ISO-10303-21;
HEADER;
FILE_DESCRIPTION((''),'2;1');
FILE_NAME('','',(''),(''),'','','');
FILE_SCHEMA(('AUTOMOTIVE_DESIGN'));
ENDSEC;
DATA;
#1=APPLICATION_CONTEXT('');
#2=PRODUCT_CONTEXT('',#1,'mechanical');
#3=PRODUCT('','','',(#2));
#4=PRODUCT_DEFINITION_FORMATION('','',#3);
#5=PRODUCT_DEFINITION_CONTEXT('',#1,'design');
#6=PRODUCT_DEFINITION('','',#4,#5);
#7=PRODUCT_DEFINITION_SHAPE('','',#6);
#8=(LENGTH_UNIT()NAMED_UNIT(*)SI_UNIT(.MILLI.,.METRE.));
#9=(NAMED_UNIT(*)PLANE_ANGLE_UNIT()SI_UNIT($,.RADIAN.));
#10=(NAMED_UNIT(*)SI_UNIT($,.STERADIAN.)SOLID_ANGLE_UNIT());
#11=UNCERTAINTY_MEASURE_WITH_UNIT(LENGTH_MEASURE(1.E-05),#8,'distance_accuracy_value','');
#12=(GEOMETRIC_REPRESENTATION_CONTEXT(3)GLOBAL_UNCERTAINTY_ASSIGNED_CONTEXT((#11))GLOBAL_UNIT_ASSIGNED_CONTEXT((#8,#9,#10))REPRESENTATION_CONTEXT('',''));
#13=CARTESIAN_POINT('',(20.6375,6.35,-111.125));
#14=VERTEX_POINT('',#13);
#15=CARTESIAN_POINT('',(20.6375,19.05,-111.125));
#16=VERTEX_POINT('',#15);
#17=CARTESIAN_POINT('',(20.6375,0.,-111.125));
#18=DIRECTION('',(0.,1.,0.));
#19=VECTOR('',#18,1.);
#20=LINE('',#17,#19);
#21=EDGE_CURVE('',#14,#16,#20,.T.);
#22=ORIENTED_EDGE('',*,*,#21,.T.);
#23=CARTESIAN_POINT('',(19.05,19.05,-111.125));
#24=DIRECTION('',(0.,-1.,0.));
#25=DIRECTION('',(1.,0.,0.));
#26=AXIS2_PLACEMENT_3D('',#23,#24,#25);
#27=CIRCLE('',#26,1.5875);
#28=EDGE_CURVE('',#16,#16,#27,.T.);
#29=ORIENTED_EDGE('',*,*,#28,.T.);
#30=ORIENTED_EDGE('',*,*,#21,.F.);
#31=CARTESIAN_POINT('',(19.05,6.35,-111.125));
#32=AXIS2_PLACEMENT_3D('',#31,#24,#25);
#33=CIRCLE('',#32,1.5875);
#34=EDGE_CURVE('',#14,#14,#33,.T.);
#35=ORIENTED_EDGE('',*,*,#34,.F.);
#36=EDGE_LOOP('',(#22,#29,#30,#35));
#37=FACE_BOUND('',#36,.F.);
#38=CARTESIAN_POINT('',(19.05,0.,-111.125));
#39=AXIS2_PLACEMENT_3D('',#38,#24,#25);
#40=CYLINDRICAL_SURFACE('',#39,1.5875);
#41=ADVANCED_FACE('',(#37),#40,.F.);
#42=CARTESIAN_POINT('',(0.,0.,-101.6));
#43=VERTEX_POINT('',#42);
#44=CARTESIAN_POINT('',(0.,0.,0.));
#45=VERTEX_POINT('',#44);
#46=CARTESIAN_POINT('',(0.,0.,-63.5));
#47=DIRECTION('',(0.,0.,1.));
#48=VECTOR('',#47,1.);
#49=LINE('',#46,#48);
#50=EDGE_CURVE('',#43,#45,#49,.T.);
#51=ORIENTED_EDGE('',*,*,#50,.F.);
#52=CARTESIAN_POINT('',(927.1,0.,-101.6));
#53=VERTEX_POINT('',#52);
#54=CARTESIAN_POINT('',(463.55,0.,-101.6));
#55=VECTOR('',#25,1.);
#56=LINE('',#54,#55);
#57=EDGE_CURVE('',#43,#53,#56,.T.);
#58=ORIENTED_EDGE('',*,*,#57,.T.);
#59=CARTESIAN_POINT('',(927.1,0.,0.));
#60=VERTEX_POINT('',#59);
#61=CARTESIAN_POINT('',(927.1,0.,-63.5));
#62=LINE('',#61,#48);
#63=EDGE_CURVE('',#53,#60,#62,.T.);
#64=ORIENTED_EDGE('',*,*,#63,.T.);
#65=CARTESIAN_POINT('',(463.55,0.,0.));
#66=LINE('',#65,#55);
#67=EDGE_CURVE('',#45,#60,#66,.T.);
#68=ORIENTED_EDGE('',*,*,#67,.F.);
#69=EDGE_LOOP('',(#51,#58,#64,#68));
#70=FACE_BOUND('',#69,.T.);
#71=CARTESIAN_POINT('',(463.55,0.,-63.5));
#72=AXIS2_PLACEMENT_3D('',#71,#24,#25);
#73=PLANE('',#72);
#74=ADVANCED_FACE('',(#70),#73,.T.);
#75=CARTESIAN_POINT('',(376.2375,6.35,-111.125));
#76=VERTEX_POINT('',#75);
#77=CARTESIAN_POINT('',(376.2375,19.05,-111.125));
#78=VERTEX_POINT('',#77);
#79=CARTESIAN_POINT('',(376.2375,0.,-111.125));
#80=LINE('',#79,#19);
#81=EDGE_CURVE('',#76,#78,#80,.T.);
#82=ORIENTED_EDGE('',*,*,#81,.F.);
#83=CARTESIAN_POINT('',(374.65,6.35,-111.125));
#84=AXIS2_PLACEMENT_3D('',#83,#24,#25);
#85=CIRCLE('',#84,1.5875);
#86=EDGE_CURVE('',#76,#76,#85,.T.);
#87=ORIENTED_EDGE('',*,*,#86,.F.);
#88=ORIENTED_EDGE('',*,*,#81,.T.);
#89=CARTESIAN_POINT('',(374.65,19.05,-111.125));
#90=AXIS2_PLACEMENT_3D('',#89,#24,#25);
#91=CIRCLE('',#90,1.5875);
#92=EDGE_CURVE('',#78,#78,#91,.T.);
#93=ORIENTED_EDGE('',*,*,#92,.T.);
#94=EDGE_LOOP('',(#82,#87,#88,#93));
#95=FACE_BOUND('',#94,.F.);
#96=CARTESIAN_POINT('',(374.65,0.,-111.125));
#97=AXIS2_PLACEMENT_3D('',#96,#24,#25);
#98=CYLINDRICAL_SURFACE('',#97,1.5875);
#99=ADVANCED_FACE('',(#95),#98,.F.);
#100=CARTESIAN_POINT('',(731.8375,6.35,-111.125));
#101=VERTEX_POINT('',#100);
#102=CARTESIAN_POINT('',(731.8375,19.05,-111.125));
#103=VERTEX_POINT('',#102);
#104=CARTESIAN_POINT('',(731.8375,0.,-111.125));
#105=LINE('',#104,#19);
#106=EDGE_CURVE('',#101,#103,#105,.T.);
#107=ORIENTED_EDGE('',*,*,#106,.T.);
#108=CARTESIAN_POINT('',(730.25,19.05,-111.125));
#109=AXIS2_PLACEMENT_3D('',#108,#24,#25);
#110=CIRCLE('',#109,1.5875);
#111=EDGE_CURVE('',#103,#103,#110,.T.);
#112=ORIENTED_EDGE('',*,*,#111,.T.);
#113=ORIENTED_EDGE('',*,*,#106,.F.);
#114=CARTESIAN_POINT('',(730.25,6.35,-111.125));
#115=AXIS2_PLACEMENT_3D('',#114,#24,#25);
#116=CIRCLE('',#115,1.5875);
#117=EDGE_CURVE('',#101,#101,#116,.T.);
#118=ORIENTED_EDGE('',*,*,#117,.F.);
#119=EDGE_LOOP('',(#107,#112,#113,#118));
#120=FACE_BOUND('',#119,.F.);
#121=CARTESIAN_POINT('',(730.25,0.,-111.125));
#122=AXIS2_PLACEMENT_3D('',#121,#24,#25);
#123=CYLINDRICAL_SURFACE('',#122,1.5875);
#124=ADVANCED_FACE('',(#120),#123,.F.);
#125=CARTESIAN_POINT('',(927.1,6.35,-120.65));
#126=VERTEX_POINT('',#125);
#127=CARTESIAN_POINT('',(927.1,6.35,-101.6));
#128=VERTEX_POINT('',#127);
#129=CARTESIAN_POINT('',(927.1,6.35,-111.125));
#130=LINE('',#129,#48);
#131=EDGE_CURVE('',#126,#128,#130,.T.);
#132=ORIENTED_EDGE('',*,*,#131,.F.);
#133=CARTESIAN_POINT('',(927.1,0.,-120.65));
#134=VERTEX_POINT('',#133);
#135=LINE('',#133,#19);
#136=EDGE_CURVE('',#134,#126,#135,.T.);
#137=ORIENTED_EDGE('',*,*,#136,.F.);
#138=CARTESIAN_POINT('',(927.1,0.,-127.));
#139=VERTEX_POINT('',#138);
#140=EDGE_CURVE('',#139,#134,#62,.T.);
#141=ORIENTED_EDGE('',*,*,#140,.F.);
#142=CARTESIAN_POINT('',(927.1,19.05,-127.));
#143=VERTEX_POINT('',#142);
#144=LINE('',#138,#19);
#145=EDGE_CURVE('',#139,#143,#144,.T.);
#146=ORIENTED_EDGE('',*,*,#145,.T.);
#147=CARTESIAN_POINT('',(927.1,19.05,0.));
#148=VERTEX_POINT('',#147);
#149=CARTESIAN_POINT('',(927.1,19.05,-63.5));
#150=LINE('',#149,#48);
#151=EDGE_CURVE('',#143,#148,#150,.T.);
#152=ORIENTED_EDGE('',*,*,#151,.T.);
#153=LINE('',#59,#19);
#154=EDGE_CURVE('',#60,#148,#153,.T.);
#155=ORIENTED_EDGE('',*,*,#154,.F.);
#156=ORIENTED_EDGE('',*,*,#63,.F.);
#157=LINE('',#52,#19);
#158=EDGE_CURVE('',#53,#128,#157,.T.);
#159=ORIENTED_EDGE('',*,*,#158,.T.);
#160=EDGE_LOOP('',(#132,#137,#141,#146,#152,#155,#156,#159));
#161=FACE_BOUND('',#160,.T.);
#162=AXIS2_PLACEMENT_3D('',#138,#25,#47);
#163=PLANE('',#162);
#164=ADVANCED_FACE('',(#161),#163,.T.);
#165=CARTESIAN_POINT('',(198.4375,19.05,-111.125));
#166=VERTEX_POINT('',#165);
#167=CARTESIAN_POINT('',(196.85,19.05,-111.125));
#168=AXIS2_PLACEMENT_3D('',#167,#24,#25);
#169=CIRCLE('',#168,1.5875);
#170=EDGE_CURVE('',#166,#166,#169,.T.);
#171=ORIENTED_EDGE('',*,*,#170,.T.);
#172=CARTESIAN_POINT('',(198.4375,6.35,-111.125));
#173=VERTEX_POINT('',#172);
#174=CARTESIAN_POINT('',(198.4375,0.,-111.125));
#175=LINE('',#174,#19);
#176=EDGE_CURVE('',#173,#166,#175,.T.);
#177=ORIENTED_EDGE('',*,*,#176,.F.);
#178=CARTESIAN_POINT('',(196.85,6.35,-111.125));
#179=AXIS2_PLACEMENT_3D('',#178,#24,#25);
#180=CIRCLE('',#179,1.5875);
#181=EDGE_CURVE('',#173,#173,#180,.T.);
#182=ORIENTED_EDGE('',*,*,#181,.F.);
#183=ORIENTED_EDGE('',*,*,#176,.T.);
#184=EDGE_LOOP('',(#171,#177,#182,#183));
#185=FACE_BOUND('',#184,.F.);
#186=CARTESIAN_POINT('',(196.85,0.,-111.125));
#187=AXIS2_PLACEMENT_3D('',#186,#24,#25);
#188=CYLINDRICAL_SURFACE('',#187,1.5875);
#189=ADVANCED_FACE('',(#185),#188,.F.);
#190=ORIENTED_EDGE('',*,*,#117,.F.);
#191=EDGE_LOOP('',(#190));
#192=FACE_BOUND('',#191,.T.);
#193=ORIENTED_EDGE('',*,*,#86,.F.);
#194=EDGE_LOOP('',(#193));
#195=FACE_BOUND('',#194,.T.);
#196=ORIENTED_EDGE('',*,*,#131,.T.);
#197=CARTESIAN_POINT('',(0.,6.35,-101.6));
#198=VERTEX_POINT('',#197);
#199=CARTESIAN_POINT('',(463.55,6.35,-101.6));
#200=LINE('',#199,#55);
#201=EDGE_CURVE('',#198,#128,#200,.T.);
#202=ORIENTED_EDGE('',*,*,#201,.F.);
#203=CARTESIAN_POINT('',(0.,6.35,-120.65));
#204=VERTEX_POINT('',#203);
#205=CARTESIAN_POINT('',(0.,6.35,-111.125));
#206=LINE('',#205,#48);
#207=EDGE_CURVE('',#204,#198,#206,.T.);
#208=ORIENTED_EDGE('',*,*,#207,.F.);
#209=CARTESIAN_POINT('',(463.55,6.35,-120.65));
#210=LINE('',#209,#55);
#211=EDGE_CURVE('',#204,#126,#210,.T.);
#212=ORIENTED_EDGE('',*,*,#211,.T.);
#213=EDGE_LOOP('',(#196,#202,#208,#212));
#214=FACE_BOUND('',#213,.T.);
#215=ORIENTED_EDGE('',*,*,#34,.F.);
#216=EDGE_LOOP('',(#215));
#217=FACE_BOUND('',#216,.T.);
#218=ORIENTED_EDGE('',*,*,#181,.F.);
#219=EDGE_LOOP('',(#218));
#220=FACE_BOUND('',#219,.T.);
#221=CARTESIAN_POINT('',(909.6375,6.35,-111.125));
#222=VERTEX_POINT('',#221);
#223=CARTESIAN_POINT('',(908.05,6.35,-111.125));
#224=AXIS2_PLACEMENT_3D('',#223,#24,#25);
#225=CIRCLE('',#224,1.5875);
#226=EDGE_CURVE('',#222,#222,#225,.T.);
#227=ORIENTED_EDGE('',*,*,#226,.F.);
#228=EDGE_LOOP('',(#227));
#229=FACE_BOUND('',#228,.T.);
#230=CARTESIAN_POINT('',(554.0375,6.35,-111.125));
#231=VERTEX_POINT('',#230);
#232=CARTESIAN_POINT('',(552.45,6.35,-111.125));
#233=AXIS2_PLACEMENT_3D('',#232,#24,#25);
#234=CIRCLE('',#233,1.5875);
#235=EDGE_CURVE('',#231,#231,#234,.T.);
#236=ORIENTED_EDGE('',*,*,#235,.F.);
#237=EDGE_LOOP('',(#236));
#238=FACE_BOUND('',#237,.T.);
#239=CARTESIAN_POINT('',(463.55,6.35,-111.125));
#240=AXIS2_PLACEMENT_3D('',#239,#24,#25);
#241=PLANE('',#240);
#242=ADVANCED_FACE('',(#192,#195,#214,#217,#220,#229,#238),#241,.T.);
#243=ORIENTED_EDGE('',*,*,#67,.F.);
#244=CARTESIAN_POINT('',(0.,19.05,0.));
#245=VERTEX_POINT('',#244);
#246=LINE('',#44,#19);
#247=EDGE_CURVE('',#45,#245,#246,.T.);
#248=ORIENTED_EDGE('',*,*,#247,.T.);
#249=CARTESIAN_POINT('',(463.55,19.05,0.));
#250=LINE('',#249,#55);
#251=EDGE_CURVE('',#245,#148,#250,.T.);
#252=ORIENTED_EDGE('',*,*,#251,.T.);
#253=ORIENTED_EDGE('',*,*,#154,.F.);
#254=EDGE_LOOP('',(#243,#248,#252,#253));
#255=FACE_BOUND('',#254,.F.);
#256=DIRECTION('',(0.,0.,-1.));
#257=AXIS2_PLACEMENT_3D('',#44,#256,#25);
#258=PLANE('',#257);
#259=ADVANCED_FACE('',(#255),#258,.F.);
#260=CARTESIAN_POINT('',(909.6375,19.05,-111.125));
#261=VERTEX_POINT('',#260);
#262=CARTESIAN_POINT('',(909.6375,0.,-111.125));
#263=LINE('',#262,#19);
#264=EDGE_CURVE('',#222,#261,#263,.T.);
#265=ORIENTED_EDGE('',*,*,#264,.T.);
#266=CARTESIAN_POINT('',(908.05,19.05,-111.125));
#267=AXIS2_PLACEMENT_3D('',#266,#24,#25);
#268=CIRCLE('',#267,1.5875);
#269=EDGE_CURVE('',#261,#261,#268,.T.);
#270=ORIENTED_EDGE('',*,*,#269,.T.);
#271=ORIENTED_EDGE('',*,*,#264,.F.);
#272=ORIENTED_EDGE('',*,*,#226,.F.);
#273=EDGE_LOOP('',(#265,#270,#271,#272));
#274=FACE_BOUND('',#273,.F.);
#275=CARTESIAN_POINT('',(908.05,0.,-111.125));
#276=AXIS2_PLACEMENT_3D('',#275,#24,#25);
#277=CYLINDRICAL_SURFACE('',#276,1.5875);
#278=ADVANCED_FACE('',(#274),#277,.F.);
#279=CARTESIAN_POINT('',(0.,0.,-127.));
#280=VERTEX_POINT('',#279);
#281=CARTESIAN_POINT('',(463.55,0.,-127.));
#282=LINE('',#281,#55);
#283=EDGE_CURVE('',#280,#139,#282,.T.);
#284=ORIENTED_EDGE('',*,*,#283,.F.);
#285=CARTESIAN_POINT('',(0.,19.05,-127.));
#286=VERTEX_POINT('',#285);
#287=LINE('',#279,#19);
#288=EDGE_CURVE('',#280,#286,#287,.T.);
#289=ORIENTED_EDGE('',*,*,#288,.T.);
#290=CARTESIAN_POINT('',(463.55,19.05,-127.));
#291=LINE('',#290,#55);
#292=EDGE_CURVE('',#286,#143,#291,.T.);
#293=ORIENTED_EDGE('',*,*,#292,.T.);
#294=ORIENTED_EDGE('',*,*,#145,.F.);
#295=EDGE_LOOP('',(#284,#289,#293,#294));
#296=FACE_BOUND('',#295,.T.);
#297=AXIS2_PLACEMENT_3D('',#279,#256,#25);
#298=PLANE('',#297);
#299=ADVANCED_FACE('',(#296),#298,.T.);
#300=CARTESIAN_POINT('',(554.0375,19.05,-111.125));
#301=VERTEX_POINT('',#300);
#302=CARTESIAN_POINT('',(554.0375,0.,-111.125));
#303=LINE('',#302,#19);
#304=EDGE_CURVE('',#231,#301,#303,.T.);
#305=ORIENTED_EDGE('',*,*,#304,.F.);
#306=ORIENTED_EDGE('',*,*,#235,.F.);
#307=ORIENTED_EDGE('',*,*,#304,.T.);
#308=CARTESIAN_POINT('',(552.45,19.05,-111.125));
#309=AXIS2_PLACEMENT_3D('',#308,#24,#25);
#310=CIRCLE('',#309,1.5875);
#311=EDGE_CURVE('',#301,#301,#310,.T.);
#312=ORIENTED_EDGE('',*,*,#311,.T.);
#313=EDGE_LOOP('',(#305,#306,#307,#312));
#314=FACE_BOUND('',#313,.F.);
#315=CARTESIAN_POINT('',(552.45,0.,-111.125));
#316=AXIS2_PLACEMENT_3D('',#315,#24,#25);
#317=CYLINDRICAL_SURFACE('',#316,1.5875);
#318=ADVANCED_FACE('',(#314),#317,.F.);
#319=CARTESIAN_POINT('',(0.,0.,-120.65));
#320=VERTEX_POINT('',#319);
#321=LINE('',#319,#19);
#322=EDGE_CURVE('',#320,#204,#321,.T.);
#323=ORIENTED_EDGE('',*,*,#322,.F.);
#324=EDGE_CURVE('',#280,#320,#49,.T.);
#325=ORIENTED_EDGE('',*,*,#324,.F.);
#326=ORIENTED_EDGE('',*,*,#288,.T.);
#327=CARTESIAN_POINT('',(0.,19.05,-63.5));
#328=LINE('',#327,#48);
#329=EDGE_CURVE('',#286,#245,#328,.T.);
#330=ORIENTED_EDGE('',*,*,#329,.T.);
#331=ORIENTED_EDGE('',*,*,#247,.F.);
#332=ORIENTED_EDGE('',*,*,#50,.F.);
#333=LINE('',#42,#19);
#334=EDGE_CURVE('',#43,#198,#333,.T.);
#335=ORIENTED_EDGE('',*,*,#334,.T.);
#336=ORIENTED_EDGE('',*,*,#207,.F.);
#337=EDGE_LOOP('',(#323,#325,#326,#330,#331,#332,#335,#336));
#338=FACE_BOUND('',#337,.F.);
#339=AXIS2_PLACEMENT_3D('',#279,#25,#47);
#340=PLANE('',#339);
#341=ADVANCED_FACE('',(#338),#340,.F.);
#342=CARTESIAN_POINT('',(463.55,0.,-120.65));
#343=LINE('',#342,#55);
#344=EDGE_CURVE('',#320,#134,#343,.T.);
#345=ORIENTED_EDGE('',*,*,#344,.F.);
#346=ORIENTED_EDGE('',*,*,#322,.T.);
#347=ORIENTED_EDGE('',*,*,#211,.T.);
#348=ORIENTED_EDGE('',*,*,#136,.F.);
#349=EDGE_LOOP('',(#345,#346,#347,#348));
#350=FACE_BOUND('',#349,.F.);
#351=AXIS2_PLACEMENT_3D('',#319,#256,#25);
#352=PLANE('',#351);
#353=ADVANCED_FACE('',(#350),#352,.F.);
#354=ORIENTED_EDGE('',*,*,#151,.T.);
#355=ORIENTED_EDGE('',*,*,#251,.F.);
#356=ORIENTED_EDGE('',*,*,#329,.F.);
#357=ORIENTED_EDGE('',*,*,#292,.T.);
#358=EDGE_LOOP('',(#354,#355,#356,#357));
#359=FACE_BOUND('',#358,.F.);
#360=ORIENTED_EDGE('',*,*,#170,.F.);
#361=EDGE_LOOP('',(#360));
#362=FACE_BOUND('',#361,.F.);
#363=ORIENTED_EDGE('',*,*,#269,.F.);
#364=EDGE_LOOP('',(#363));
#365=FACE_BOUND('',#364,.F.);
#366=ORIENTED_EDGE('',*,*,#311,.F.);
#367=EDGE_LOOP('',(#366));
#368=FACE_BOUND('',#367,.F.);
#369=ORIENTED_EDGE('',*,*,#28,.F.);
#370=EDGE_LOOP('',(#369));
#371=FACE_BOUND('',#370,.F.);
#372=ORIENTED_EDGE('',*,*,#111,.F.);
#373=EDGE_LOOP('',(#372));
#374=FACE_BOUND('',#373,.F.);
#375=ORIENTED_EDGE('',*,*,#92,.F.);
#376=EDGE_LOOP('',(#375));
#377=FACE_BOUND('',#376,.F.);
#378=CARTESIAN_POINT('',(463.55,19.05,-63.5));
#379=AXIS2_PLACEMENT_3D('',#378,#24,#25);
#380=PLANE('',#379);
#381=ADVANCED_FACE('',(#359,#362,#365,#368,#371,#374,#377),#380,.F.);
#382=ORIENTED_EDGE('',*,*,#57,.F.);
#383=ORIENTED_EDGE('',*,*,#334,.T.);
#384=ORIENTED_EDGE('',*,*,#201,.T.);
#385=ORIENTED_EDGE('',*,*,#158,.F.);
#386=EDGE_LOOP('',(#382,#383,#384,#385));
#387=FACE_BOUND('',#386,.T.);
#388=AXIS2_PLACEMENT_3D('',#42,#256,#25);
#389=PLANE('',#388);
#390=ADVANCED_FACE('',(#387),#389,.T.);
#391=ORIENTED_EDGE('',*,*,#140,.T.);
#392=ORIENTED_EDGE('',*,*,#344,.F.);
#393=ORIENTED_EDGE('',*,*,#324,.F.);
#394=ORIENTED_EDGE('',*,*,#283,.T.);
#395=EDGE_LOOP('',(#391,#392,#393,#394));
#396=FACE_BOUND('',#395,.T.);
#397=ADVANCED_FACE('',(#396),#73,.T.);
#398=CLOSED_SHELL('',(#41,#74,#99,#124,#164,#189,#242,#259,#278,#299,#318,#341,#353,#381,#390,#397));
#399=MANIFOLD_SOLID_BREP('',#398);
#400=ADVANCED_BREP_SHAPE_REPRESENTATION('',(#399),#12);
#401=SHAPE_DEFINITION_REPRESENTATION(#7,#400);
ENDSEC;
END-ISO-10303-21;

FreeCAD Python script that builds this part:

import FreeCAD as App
import Part
import Sketcher

V = App.Vector
Q = App.Units.Quantity


def add_polygon(sketch, points):
    """Adds a closed chain of lines whose ends are joined by coincident constraints."""
    first, n = sketch.GeometryCount, len(points)
    for a, b in zip(points, points[1:] + points[:1]):
        sketch.addGeometry(Part.LineSegment(App.Vector(*a, 0), App.Vector(*b, 0)), False)
    for i in range(n):
        sketch.addConstraint(Sketcher.Constraint("Coincident", first + i, 2, first + (i + 1) % n, 1))

doc = App.newDocument("Part")
params = doc.addObject("Spreadsheet::Sheet", "Params")
for row, (alias, value) in enumerate([
    ("sketch1_height", "5 in"),
    ("sketch1_width", "36.5 in"),
    ("pad1_length", "0.75 in"),
    ("sketch2_width", "36.5 in"),
    ("sketch2_height", "0.75 in"),
    ("pocket1_length", "0.25 in"),
    ("sketch3_diameter", "0.125 in"),
], start=1):
    params.set(f"A{row}", alias)
    params.set(f"B{row}", "=" + value)
    params.setAlias(f"B{row}", alias)

body = doc.addObject("PartDesign::Body", "Body")

# Sketch on XZ plane
sketch1 = doc.addObject("Sketcher::SketchObject", "Sketch")
body.addObject(sketch1)
sketch1.AttachmentSupport = (doc.XZ_Plane, [""])
sketch1.MapMode = "FlatFace"
add_polygon(sketch1, [(0, 0), (0, -127), (927, -127), (927, 0)])  # lines 0-3
sketch1.addConstraint([
    Sketcher.Constraint("Vertical", 0),
    Sketcher.Constraint("Horizontal", 1),
    Sketcher.Constraint("Vertical", 2),
    Sketcher.Constraint("Horizontal", 3),
    Sketcher.Constraint("Coincident", 3, 2, -1, 1),
    Sketcher.Constraint("DistanceY", 0, 2, 0, 1, Q("5 in")),
    Sketcher.Constraint("DistanceX", 1, 1, 1, 2, Q("36.5 in")),
])
sketch1.setExpression("Constraints[9]", "Params.sketch1_height")
sketch1.setExpression("Constraints[10]", "Params.sketch1_width")
pad1 = doc.addObject("PartDesign::Pad", "Pad")
body.addObject(pad1)
pad1.Profile = sketch1
pad1.setExpression("Length", "Params.pad1_length")
pad1.Reversed = True

# Sketch on XZ plane
sketch2 = doc.addObject("Sketcher::SketchObject", "Sketch001")
body.addObject(sketch2)
sketch2.AttachmentSupport = (doc.XZ_Plane, [""])
sketch2.MapMode = "FlatFace"
add_polygon(sketch2, [(0, -102), (0, -121), (927, -121), (927, -102)])  # lines 0-3
sketch2.addConstraint([
    Sketcher.Constraint("Vertical", 0),
    Sketcher.Constraint("Horizontal", 1),
    Sketcher.Constraint("Vertical", 2),
    Sketcher.Constraint("Horizontal", 3),
    Sketcher.Constraint("PointOnObject", 0, 2, -2),
    Sketcher.Constraint("DistanceX", 1, 1, 1, 2, Q("36.5 in")),
    Sketcher.Constraint("DistanceY", 2, 2, -1, 1, Q("4 in")),
    Sketcher.Constraint("DistanceY", 0, 2, 0, 1, Q("0.75 in")),
])
sketch2.setExpression("Constraints[9]", "Params.sketch2_width")
sketch2.setExpression("Constraints[11]", "Params.sketch2_height")
pocket1 = doc.addObject("PartDesign::Pocket", "Pocket")
body.addObject(pocket1)
pocket1.Profile = sketch2
pocket1.setExpression("Length", "Params.pocket1_length")

# Sketch on XZ plane
sketch3 = doc.addObject("Sketcher::SketchObject", "Sketch002")
body.addObject(sketch3)
sketch3.AttachmentSupport = (doc.XZ_Plane, [""])
sketch3.MapMode = "FlatFace"
sketch3.addGeometry([
    Part.Circle(V(19.1, -111.1, 0), V(0, 0, 1), 1.6),  # 0
    Part.Circle(V(196.8, -111.1, 0), V(0, 0, 1), 1.6),  # 1
    Part.Circle(V(374.6, -111.1, 0), V(0, 0, 1), 1.6),  # 2
    Part.Circle(V(552.5, -111.1, 0), V(0, 0, 1), 1.6),  # 3
    Part.Circle(V(730.2, -111.1, 0), V(0, 0, 1), 1.6),  # 4
    Part.Circle(V(908, -111.1, 0), V(0, 0, 1), 1.6),  # 5
], False)
sketch3.addConstraint([
    Sketcher.Constraint("Equal", 0, 1),
    Sketcher.Constraint("Equal", 1, 2),
    Sketcher.Constraint("Equal", 2, 3),
    Sketcher.Constraint("Equal", 3, 4),
    Sketcher.Constraint("Equal", 4, 5),
    Sketcher.Constraint("Horizontal", 0, 3, 1, 3),
    Sketcher.Constraint("Horizontal", 1, 3, 2, 3),
    Sketcher.Constraint("Horizontal", 2, 3, 3, 3),
    Sketcher.Constraint("Horizontal", 3, 3, 4, 3),
    Sketcher.Constraint("Horizontal", 4, 3, 5, 3),
    Sketcher.Constraint("Diameter", 0, Q("0.125 in")),
    Sketcher.Constraint("DistanceX", 0, 3, 1, 3, Q("7 in")),
    Sketcher.Constraint("DistanceX", 1, 3, 2, 3, Q("7 in")),
    Sketcher.Constraint("DistanceX", 2, 3, 3, 3, Q("7 in")),
    Sketcher.Constraint("DistanceX", 3, 3, 4, 3, Q("7 in")),
    Sketcher.Constraint("DistanceX", 4, 3, 5, 3, Q("7 in")),
    Sketcher.Constraint("DistanceX", -1, 1, 0, 3, Q("0.75 in")),
    Sketcher.Constraint("DistanceY", 0, 3, -1, 1, Q("4.375 in")),
])
sketch3.setExpression("Constraints[10]", "Params.sketch3_diameter")
pocket2 = doc.addObject("PartDesign::Pocket", "Pocket001")
body.addObject(pocket2)
pocket2.Profile = sketch3
pocket2.Type = "ThroughAll"

doc.recompute()
